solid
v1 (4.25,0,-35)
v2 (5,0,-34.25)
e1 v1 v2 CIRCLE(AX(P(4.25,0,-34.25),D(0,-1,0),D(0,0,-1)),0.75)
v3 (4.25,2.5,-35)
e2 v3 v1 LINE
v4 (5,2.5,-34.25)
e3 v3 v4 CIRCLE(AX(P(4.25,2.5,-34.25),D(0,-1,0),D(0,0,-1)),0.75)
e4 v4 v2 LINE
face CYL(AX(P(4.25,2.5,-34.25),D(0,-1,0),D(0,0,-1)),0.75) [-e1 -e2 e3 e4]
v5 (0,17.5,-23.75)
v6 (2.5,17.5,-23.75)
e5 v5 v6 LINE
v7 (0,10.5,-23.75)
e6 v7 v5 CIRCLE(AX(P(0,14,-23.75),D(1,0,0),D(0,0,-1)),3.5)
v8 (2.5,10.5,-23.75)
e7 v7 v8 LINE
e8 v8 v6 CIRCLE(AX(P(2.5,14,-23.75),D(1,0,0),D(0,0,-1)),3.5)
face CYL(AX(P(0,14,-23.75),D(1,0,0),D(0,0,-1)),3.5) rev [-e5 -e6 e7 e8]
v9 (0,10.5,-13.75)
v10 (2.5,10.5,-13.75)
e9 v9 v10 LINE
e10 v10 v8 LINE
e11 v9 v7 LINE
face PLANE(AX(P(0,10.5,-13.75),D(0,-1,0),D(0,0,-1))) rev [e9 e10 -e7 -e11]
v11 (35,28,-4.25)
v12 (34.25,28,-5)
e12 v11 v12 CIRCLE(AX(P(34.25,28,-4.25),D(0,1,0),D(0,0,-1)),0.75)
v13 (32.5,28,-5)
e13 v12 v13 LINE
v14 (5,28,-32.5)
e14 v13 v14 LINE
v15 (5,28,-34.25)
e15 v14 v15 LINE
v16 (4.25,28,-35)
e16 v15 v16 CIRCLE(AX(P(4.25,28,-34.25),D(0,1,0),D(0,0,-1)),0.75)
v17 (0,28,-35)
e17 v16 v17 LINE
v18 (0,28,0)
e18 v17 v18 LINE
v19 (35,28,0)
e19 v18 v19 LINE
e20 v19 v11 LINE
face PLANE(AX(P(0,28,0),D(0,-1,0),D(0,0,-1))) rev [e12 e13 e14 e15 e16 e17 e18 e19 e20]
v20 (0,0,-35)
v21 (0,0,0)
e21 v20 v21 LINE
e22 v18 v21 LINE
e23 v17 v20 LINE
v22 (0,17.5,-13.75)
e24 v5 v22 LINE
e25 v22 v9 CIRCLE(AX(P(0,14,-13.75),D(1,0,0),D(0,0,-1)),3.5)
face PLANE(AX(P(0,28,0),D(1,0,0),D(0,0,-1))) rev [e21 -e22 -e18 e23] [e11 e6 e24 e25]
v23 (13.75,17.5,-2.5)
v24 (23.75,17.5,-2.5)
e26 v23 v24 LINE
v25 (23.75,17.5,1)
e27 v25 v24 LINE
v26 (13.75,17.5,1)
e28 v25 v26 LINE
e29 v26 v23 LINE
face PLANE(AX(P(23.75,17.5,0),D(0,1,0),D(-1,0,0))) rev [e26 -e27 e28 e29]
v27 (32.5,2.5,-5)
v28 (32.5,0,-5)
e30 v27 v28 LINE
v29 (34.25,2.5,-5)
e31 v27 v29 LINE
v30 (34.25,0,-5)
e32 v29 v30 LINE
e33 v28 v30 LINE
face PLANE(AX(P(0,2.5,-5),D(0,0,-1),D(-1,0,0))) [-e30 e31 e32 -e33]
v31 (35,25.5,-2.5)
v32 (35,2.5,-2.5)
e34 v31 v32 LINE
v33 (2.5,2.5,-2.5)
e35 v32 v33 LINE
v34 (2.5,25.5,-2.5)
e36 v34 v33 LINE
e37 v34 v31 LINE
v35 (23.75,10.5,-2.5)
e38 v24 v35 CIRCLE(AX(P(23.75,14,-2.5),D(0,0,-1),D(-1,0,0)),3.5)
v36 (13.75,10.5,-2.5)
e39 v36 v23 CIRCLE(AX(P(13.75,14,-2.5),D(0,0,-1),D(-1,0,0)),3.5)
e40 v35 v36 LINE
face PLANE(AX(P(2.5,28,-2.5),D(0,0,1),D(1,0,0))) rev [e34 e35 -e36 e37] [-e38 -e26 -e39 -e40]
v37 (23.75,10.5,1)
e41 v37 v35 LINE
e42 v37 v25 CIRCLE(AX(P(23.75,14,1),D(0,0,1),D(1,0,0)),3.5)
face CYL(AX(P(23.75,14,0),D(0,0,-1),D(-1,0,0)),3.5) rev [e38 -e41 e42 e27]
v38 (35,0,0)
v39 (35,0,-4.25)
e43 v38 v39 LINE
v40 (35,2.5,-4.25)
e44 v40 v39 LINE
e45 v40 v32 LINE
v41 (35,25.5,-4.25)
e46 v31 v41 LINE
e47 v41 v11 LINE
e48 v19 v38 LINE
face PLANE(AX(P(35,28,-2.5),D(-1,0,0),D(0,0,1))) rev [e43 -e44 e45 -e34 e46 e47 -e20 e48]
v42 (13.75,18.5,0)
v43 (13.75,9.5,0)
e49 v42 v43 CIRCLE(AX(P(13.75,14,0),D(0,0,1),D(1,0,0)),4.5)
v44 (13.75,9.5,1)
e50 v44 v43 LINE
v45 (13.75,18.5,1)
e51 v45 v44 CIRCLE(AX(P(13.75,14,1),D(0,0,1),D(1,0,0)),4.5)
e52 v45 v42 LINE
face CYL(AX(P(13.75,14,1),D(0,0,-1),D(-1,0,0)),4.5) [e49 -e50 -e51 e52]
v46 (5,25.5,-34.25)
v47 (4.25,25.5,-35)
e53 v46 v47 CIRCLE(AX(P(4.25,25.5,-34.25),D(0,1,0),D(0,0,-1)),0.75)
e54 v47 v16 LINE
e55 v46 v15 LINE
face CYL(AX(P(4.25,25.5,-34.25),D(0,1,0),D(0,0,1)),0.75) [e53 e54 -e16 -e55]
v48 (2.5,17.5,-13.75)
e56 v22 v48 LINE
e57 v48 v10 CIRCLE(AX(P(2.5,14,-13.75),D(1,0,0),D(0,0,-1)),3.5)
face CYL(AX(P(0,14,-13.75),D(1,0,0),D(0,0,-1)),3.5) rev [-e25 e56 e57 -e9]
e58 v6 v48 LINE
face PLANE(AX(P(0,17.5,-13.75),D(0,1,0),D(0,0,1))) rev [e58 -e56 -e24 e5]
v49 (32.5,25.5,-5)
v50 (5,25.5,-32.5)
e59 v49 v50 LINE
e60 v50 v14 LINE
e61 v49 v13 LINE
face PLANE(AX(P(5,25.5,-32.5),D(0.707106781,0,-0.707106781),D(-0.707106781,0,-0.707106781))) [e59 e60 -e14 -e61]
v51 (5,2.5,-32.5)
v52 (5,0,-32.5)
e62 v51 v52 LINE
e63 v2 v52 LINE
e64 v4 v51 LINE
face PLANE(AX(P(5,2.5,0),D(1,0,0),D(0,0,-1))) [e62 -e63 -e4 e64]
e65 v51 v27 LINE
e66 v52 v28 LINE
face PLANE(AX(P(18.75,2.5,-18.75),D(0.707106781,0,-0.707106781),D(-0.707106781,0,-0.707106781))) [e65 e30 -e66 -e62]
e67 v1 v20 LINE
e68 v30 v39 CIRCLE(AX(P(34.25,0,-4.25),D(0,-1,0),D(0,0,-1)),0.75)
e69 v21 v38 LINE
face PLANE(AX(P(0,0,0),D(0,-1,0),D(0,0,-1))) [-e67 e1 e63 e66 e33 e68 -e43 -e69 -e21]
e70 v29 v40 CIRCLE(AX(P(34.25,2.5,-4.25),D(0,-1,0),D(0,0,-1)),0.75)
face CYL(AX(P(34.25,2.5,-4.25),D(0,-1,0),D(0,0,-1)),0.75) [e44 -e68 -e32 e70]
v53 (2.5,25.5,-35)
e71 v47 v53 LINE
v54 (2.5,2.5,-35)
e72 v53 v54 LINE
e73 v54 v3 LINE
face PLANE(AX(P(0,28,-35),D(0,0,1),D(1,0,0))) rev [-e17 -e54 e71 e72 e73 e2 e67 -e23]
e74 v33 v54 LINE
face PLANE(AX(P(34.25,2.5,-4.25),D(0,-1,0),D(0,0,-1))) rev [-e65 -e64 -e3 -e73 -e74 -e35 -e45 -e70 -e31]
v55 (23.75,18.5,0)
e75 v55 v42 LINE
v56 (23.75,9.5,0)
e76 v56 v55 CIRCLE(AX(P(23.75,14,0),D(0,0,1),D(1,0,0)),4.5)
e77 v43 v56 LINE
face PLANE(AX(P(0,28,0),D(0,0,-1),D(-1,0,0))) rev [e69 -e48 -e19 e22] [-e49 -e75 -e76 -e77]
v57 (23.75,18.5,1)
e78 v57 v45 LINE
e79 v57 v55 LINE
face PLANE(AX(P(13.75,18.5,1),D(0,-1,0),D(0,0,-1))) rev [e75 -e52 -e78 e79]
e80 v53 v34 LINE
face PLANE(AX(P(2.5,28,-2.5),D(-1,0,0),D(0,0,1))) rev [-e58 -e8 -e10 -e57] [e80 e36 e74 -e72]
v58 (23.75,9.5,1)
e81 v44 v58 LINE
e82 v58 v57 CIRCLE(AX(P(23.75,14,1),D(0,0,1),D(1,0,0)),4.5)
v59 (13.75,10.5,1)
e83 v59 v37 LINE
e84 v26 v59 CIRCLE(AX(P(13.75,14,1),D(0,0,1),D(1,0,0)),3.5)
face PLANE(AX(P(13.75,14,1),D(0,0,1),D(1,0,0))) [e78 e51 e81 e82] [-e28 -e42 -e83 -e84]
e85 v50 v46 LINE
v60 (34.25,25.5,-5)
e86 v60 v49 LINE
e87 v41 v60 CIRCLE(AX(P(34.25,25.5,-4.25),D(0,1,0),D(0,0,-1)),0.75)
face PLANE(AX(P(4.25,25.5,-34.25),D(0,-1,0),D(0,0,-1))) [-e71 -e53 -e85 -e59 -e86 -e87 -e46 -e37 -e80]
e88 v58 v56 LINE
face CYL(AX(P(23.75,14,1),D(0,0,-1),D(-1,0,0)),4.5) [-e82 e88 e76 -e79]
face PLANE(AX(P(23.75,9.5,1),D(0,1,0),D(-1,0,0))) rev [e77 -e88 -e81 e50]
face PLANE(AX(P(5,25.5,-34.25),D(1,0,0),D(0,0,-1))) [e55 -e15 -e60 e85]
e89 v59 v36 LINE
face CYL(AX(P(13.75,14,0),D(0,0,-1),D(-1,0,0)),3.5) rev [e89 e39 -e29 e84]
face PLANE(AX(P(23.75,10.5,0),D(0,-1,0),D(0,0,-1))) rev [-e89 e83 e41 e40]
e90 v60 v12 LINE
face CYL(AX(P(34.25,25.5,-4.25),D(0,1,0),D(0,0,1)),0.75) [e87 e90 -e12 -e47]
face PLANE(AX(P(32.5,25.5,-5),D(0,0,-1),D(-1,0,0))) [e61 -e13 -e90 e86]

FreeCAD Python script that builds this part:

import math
import FreeCAD as App
import Part
import Sketcher
from FreeCAD import Vector

doc = App.newDocument("Part")
body = doc.addObject("PartDesign::Body", "Body")

sketch1 = body.newObject("Sketcher::SketchObject", "Sketch")
sketch1.AttachmentSupport = (doc.getObject("XZ_Plane"), [""])
sketch1.MapMode = "FlatFace"
sketch1.addGeometry(Part.LineSegment(Vector(0, -35, 0), Vector(0, 0, 0)), False)
sketch1.addGeometry(Part.LineSegment(Vector(0, 0, 0), Vector(35, 0, 0)), False)
sketch1.addGeometry(Part.LineSegment(Vector(35, 0, 0), Vector(35, -2.5, 0)), False)
sketch1.addGeometry(Part.LineSegment(Vector(35, -2.5, 0), Vector(2.5, -2.5, 0)), False)
sketch1.addGeometry(Part.LineSegment(Vector(2.5, -2.5, 0), Vector(2.5, -35, 0)), False)
sketch1.addGeometry(Part.LineSegment(Vector(2.5, -35, 0), Vector(0, -35, 0)), False)
sketch1.addConstraint(Sketcher.Constraint("Coincident", 0, 2, 1, 1))
sketch1.addConstraint(Sketcher.Constraint("Coincident", 1, 2, 2, 1))
sketch1.addConstraint(Sketcher.Constraint("Coincident", 2, 2, 3, 1))
sketch1.addConstraint(Sketcher.Constraint("Coincident", 3, 2, 4, 1))
sketch1.addConstraint(Sketcher.Constraint("Coincident", 4, 2, 5, 1))
sketch1.addConstraint(Sketcher.Constraint("Coincident", 5, 2, 0, 1))
sketch1.addConstraint(Sketcher.Constraint("Vertical", 0))
sketch1.addConstraint(Sketcher.Constraint("Horizontal", 1))
sketch1.addConstraint(Sketcher.Constraint("Vertical", 2))
sketch1.addConstraint(Sketcher.Constraint("Horizontal", 3))
sketch1.addConstraint(Sketcher.Constraint("Vertical", 4))
sketch1.addConstraint(Sketcher.Constraint("Horizontal", 5))
sketch1.addConstraint(Sketcher.Constraint("Coincident", 0, 2, -1, 1))
sketch1.addConstraint(Sketcher.Constraint("Equal", 1, 0))
sketch1.addConstraint(Sketcher.Constraint("Equal", 5, 2))
sketch1.addConstraint(Sketcher.Constraint("DistanceX", 1, 1, 1, 2, 35.0))
sketch1.addConstraint(Sketcher.Constraint("DistanceX", 3, 2, 3, 1, 32.5))
pad1 = body.newObject("PartDesign::Pad", "Pad")
pad1.Profile = sketch1
pad1.Length = 28
pad1.Reversed = True

sketch2 = body.newObject("Sketcher::SketchObject", "Sketch001")
sketch2.AttachmentSupport = (doc.getObject("XZ_Plane"), [""])
sketch2.MapMode = "FlatFace"
sketch2.AttachmentOffset = App.Placement(Vector(0, 0, -28), App.Rotation())
sketch2.addGeometry(Part.LineSegment(Vector(4.25, -35, 0), Vector(2.5, -35, 0)), False)
sketch2.addGeometry(Part.LineSegment(Vector(2.5, -35, 0), Vector(2.5, -2.5, 0)), False)
sketch2.addGeometry(Part.LineSegment(Vector(2.5, -2.5, 0), Vector(35, -2.5, 0)), False)
sketch2.addGeometry(Part.LineSegment(Vector(35, -2.5, 0), Vector(35, -4.25, 0)), False)
sketch2.addGeometry(Part.ArcOfCircle(Part.Circle(Vector(34.25, -4.25, 0), Vector(0, 0, 1), 0.75), math.radians(-90), math.radians(0)), False)
sketch2.addGeometry(Part.LineSegment(Vector(34.25, -5, 0), Vector(32.5, -5, 0)), False)
sketch2.addGeometry(Part.LineSegment(Vector(32.5, -5, 0), Vector(5, -32.5, 0)), False)
sketch2.addGeometry(Part.LineSegment(Vector(5, -32.5, 0), Vector(5, -34.25, 0)), False)
sketch2.addGeometry(Part.ArcOfCircle(Part.Circle(Vector(4.25, -34.25, 0), Vector(0, 0, 1), 0.75), math.radians(-90), math.radians(0)), False)
sketch2.addConstraint(Sketcher.Constraint("Coincident", 0, 2, 1, 1))
sketch2.addConstraint(Sketcher.Constraint("Coincident", 1, 2, 2, 1))
sketch2.addConstraint(Sketcher.Constraint("Coincident", 2, 2, 3, 1))
sketch2.addConstraint(Sketcher.Constraint("Tangent", 3, 2, 4, 2))
sketch2.addConstraint(Sketcher.Constraint("Tangent", 4, 1, 5, 1))
sketch2.addConstraint(Sketcher.Constraint("Coincident", 5, 2, 6, 1))
sketch2.addConstraint(Sketcher.Constraint("Coincident", 6, 2, 7, 1))
sketch2.addConstraint(Sketcher.Constraint("Tangent", 7, 2, 8, 2))
sketch2.addConstraint(Sketcher.Constraint("Tangent", 8, 1, 0, 1))
sketch2.addConstraint(Sketcher.Constraint("Horizontal", 0))
sketch2.addConstraint(Sketcher.Constraint("Vertical", 1))
sketch2.addConstraint(Sketcher.Constraint("Horizontal", 2))
sketch2.addConstraint(Sketcher.Constraint("Vertical", 3))
sketch2.addConstraint(Sketcher.Constraint("Horizontal", 5))
sketch2.addConstraint(Sketcher.Constraint("Vertical", 7))
sketch2.addConstraint(Sketcher.Constraint("Equal", 4, 8))
sketch2.addConstraint(Sketcher.Constraint("Equal", 0, 5))
sketch2.addConstraint(Sketcher.Constraint("Equal", 2, 1))
sketch2.addConstraint(Sketcher.Constraint("Equal", 5, 3))
sketch2.addConstraint(Sketcher.Constraint("Equal", 3, 7))
sketch2.addConstraint(Sketcher.Constraint("Radius", 4, 0.75))
sketch2.addConstraint(Sketcher.Constraint("DistanceX", 2, 1, 2, 2, 32.5))
sketch2.addConstraint(Sketcher.Constraint("DistanceY", 0, 2, -1, 1, 35.0))
sketch2.addConstraint(Sketcher.Constraint("DistanceX", -1, 1, 2, 2, 35.0))
sketch2.addConstraint(Sketcher.Constraint("DistanceY", 4, 1, -1, 1, 5.0))
pad2 = body.newObject("PartDesign::Pad", "Pad001")
pad2.Profile = sketch2
pad2.Length = 2.5

sketch3 = body.newObject("Sketcher::SketchObject", "Sketch002")
sketch3.AttachmentSupport = (doc.getObject("XZ_Plane"), [""])
sketch3.MapMode = "FlatFace"
sketch3.AttachmentOffset = App.Placement(Vector(0, 0, -2.5), App.Rotation())
sketch3.addGeometry(Part.LineSegment(Vector(4.25, -35, 0), Vector(2.5, -35, 0)), False)
sketch3.addGeometry(Part.LineSegment(Vector(2.5, -35, 0), Vector(2.5, -2.5, 0)), False)
sketch3.addGeometry(Part.LineSegment(Vector(2.5, -2.5, 0), Vector(35, -2.5, 0)), False)
sketch3.addGeometry(Part.LineSegment(Vector(35, -2.5, 0), Vector(35, -4.25, 0)), False)
sketch3.addGeometry(Part.ArcOfCircle(Part.Circle(Vector(34.25, -4.25, 0), Vector(0, 0, 1), 0.75), math.radians(-90), math.radians(0)), False)
sketch3.addGeometry(Part.LineSegment(Vector(34.25, -5, 0), Vector(32.5, -5, 0)), False)
sketch3.addGeometry(Part.LineSegment(Vector(32.5, -5, 0), Vector(5, -32.5, 0)), False)
sketch3.addGeometry(Part.LineSegment(Vector(5, -32.5, 0), Vector(5, -34.25, 0)), False)
sketch3.addGeometry(Part.ArcOfCircle(Part.Circle(Vector(4.25, -34.25, 0), Vector(0, 0, 1), 0.75), math.radians(-90), math.radians(0)), False)
sketch3.addConstraint(Sketcher.Constraint("Coincident", 0, 2, 1, 1))
sketch3.addConstraint(Sketcher.Constraint("Coincident", 1, 2, 2, 1))
sketch3.addConstraint(Sketcher.Constraint("Coincident", 2, 2, 3, 1))
sketch3.addConstraint(Sketcher.Constraint("Tangent", 3, 2, 4, 2))
sketch3.addConstraint(Sketcher.Constraint("Tangent", 4, 1, 5, 1))
sketch3.addConstraint(Sketcher.Constraint("Coincident", 5, 2, 6, 1))
sketch3.addConstraint(Sketcher.Constraint("Coincident", 6, 2, 7, 1))
sketch3.addConstraint(Sketcher.Constraint("Tangent", 7, 2, 8, 2))
sketch3.addConstraint(Sketcher.Constraint("Tangent", 8, 1, 0, 1))
sketch3.addConstraint(Sketcher.Constraint("Horizontal", 0))
sketch3.addConstraint(Sketcher.Constraint("Vertical", 1))
sketch3.addConstraint(Sketcher.Constraint("Horizontal", 2))
sketch3.addConstraint(Sketcher.Constraint("Vertical", 3))
sketch3.addConstraint(Sketcher.Constraint("Horizontal", 5))
sketch3.addConstraint(Sketcher.Constraint("Vertical", 7))
sketch3.addConstraint(Sketcher.Constraint("Equal", 4, 8))
sketch3.addConstraint(Sketcher.Constraint("Equal", 0, 5))
sketch3.addConstraint(Sketcher.Constraint("Equal", 2, 1))
sketch3.addConstraint(Sketcher.Constraint("Equal", 5, 3))
sketch3.addConstraint(Sketcher.Constraint("Equal", 3, 7))
sketch3.addConstraint(Sketcher.Constraint("Radius", 4, 0.75))
sketch3.addConstraint(Sketcher.Constraint("DistanceX", 2, 1, 2, 2, 32.5))
sketch3.addConstraint(Sketcher.Constraint("DistanceY", 0, 2, -1, 1, 35.0))
sketch3.addConstraint(Sketcher.Constraint("DistanceX", -1, 1, 2, 2, 35.0))
sketch3.addConstraint(Sketcher.Constraint("DistanceY", 4, 1, -1, 1, 5.0))
pad3 = body.newObject("PartDesign::Pad", "Pad002")
pad3.Profile = sketch3
pad3.Length = 2.5

sketch4 = body.newObject("Sketcher::SketchObject", "Sketch003")
sketch4.AttachmentSupport = (doc.getObject("XY_Plane"), [""])
sketch4.MapMode = "FlatFace"
sketch4.AttachmentOffset = App.Placement(Vector(0, 0, -2.5), App.Rotation())
sketch4.addGeometry(Part.LineSegment(Vector(13.75, 17.5, 0), Vector(23.75, 17.5, 0)), False)
sketch4.addGeometry(Part.ArcOfCircle(Part.Circle(Vector(23.75, 14, 0), Vector(0, 0, 1), 3.5), math.radians(-90), math.radians(90)), False)
sketch4.addGeometry(Part.LineSegment(Vector(23.75, 10.5, 0), Vector(13.75, 10.5, 0)), False)
sketch4.addGeometry(Part.ArcOfCircle(Part.Circle(Vector(13.75, 14, 0), Vector(0, 0, 1), 3.5), math.radians(90), math.radians(270)), False)
sketch4.addConstraint(Sketcher.Constraint("Tangent", 0, 2, 1, 2))
sketch4.addConstraint(Sketcher.Constraint("Tangent", 1, 1, 2, 1))
sketch4.addConstraint(Sketcher.Constraint("Tangent", 2, 2, 3, 2))
sketch4.addConstraint(Sketcher.Constraint("Tangent", 3, 1, 0, 1))
sketch4.addConstraint(Sketcher.Constraint("Horizontal", 0))
sketch4.addConstraint(Sketcher.Constraint("Horizontal", 2))
sketch4.addConstraint(Sketcher.Constraint("Radius", 1, 3.5))
sketch4.addConstraint(Sketcher.Constraint("DistanceX", 0, 1, 0, 2, 10.0))
sketch4.addConstraint(Sketcher.Constraint("DistanceY", -1, 1, 1, 3, 14.0))
sketch4.addConstraint(Sketcher.Constraint("DistanceX", -1, 1, 1, 3, 23.75))
pocket1 = body.newObject("PartDesign::Pocket", "Pocket")
pocket1.Profile = sketch4
pocket1.Length = 2.5
pocket1.Reversed = True

sketch5 = body.newObject("Sketcher::SketchObject", "Sketch004")
sketch5.AttachmentSupport = (doc.getObject("YZ_Plane"), [""])
sketch5.MapMode = "FlatFace"
sketch5.AttachmentOffset = App.Placement(Vector(0, 0, 2.5), App.Rotation())
sketch5.addGeometry(Part.LineSegment(Vector(17.5, -23.75, 0), Vector(17.5, -13.75, 0)), False)
sketch5.addGeometry(Part.ArcOfCircle(Part.Circle(Vector(14, -13.75, 0), Vector(0, 0, 1), 3.5), math.radians(0), math.radians(180)), False)
sketch5.addGeometry(Part.LineSegment(Vector(10.5, -13.75, 0), Vector(10.5, -23.75, 0)), False)
sketch5.addGeometry(Part.ArcOfCircle(Part.Circle(Vector(14, -23.75, 0), Vector(0, 0, 1), 3.5), math.radians(180), math.radians(360)), False)
sketch5.addConstraint(Sketcher.Constraint("Tangent", 0, 2, 1, 1))
sketch5.addConstraint(Sketcher.Constraint("Tangent", 1, 2, 2, 1))
sketch5.addConstraint(Sketcher.Constraint("Tangent", 2, 2, 3, 1))
sketch5.addConstraint(Sketcher.Constraint("Tangent", 3, 2, 0, 1))
sketch5.addConstraint(Sketcher.Constraint("Vertical", 0))
sketch5.addConstraint(Sketcher.Constraint("Vertical", 2))
sketch5.addConstraint(Sketcher.Constraint("Radius", 1, 3.5))
sketch5.addConstraint(Sketcher.Constraint("DistanceY", 0, 1, 0, 2, 10.0))
sketch5.addConstraint(Sketcher.Constraint("DistanceX", -1, 1, 1, 3, 14.0))
sketch5.addConstraint(Sketcher.Constraint("DistanceY", 1, 3, -1, 1, 13.75))
pocket2 = body.newObject("PartDesign::Pocket", "Pocket001")
pocket2.Profile = sketch5
pocket2.Length = 2.5

sketch6 = body.newObject("Sketcher::SketchObject", "Sketch005")
sketch6.AttachmentSupport = (doc.getObject("XY_Plane"), [""])
sketch6.MapMode = "FlatFace"
sketch6.addGeometry(Part.LineSegment(Vector(23.75, 18.5, 0), Vector(13.75, 18.5, 0)), False)
sketch6.addGeometry(Part.ArcOfCircle(Part.Circle(Vector(13.75, 14, 0), Vector(0, 0, 1), 4.5), math.radians(90), math.radians(270)), False)
sketch6.addGeometry(Part.LineSegment(Vector(13.75, 9.5, 0), Vector(23.75, 9.5, 0)), False)
sketch6.addGeometry(Part.ArcOfCircle(Part.Circle(Vector(23.75, 14, 0), Vector(0, 0, 1), 4.5), math.radians(-90), math.radians(90)), False)
sketch6.addGeometry(Part.LineSegment(Vector(13.75, 17.5, 0), Vector(23.75, 17.5, 0)), False)
sketch6.addGeometry(Part.ArcOfCircle(Part.Circle(Vector(23.75, 14, 0), Vector(0, 0, 1), 3.5), math.radians(-90), math.radians(90)), False)
sketch6.addGeometry(Part.LineSegment(Vector(23.75, 10.5, 0), Vector(13.75, 10.5, 0)), False)
sketch6.addGeometry(Part.ArcOfCircle(Part.Circle(Vector(13.75, 14, 0), Vector(0, 0, 1), 3.5), math.radians(90), math.radians(270)), False)
sketch6.addConstraint(Sketcher.Constraint("Tangent", 0, 2, 1, 1))
sketch6.addConstraint(Sketcher.Constraint("Tangent", 1, 2, 2, 1))
sketch6.addConstraint(Sketcher.Constraint("Tangent", 2, 2, 3, 1))
sketch6.addConstraint(Sketcher.Constraint("Tangent", 3, 2, 0, 1))
sketch6.addConstraint(Sketcher.Constraint("Tangent", 4, 2, 5, 2))
sketch6.addConstraint(Sketcher.Constraint("Tangent", 5, 1, 6, 1))
sketch6.addConstraint(Sketcher.Constraint("Tangent", 6, 2, 7, 2))
sketch6.addConstraint(Sketcher.Constraint("Tangent", 7, 1, 4, 1))
sketch6.addConstraint(Sketcher.Constraint("Horizontal", 0))
sketch6.addConstraint(Sketcher.Constraint("Horizontal", 2))
sketch6.addConstraint(Sketcher.Constraint("Horizontal", 4))
sketch6.addConstraint(Sketcher.Constraint("Horizontal", 6))
sketch6.addConstraint(Sketcher.Constraint("Coincident", 5, 3, 3, 3))
sketch6.addConstraint(Sketcher.Constraint("Vertical", 7, 3, 0, 2))
sketch6.addConstraint(Sketcher.Constraint("Radius", 1, 4.5))
sketch6.addConstraint(Sketcher.Constraint("Radius", 5, 3.5))
sketch6.addConstraint(Sketcher.Constraint("DistanceX", 0, 2, 0, 1, 10.0))
sketch6.addConstraint(Sketcher.Constraint("DistanceY", -1, 1, 1, 3, 14.0))
sketch6.addConstraint(Sketcher.Constraint("DistanceX", -1, 1, 1, 3, 13.75))
pad4 = body.newObject("PartDesign::Pad", "Pad003")
pad4.Profile = sketch6
pad4.Length = 1

doc.recompute()
